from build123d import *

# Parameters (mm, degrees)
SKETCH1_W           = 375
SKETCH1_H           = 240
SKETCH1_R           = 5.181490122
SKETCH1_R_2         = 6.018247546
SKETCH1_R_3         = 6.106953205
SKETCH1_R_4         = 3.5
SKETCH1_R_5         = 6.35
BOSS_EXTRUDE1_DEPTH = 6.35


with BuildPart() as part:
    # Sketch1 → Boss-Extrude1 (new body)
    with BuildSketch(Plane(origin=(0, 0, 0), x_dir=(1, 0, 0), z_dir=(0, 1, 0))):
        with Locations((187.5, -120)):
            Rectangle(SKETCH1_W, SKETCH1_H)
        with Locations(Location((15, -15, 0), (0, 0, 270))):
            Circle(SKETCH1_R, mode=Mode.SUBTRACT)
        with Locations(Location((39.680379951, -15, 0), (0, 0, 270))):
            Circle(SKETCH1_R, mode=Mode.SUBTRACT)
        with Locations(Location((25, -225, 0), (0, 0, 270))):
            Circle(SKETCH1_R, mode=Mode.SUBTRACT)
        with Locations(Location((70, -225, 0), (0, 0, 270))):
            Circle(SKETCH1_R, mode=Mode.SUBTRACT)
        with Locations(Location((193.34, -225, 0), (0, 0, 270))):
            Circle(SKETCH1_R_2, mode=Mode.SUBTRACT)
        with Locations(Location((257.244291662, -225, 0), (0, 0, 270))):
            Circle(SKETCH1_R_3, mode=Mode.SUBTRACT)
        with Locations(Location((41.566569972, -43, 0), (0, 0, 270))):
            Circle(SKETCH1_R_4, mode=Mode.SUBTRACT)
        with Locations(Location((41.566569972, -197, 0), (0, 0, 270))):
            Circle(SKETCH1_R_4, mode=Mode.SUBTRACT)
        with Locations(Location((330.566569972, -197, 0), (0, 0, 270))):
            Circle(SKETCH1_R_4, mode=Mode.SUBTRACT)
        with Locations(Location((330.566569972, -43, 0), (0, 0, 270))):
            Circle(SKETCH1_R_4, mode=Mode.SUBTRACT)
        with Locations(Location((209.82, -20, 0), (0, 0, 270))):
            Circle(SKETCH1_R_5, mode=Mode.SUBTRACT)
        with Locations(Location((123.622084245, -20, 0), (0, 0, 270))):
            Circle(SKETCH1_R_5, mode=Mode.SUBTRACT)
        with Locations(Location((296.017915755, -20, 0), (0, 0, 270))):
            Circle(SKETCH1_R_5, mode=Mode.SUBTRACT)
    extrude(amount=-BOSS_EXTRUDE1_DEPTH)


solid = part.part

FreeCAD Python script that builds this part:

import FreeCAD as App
import Part
import Sketcher

V = App.Vector


def add_polygon(sketch, points):
    """Adds a closed chain of lines whose ends are joined by coincident constraints."""
    first, n = sketch.GeometryCount, len(points)
    for a, b in zip(points, points[1:] + points[:1]):
        sketch.addGeometry(Part.LineSegment(App.Vector(*a, 0), App.Vector(*b, 0)), False)
    for i in range(n):
        sketch.addConstraint(Sketcher.Constraint("Coincident", first + i, 2, first + (i + 1) % n, 1))

doc = App.newDocument("Part")
body = doc.addObject("PartDesign::Body", "Body")

# Sketch on XZ plane
sketch1 = doc.addObject("Sketcher::SketchObject", "Sketch")
body.addObject(sketch1)
sketch1.AttachmentSupport = (doc.XZ_Plane, [""])
sketch1.MapMode = "FlatFace"
add_polygon(sketch1, [(0, 0), (0, 240), (375, 240), (375, 0)])  # lines 0-3
sketch1.addGeometry(Part.Circle(V(25, 225, 0), V(0, 0, 1), 5.18149), False)  # 4
sketch1.addGeometry(Part.Circle(V(70, 225, 0), V(0, 0, 1), 5.18149), False)  # 5
sketch1.addGeometry(Part.Circle(V(41.56657, 197, 0), V(0, 0, 1), 3.5), False)  # 6
sketch1.addGeometry(Part.Circle(V(193.34, 225, 0), V(0, 0, 1), 6.018248), False)  # 7
sketch1.addGeometry(Part.Circle(V(257.244292, 225, 0), V(0, 0, 1), 6.106953), False)  # 8
sketch1.addGeometry(Part.Circle(V(330.56657, 197, 0), V(0, 0, 1), 3.5), False)  # 9
sketch1.addGeometry(Part.Circle(V(41.56657, 43, 0), V(0, 0, 1), 3.5), False)  # 10
sketch1.addGeometry(Part.Circle(V(15, 15, 0), V(0, 0, 1), 5.18149), False)  # 11
sketch1.addGeometry(Part.Circle(V(39.68038, 15, 0), V(0, 0, 1), 5.18149), False)  # 12
sketch1.addGeometry(Part.Circle(V(123.622084, 20, 0), V(0, 0, 1), 6.35), False)  # 13
sketch1.addGeometry(Part.Circle(V(209.82, 20, 0), V(0, 0, 1), 6.35), False)  # 14
sketch1.addGeometry(Part.Circle(V(330.56657, 43, 0), V(0, 0, 1), 3.5), False)  # 15
sketch1.addGeometry(Part.Circle(V(296.017916, 20, 0), V(0, 0, 1), 6.35), False)  # 16
sketch1.addConstraint([
    Sketcher.Constraint("Vertical", 0),
    Sketcher.Constraint("Horizontal", 1),
    Sketcher.Constraint("Vertical", 2),
    Sketcher.Constraint("Horizontal", 3),
    Sketcher.Constraint("Coincident", 3, 2, -1, 1),
    Sketcher.Constraint("Equal", 4, 5),
    Sketcher.Constraint("Equal", 6, 9),
    Sketcher.Constraint("Equal", 9, 10),
    Sketcher.Constraint("Equal", 5, 11),
    Sketcher.Constraint("Equal", 11, 12),
    Sketcher.Constraint("Equal", 13, 14),
    Sketcher.Constraint("Equal", 10, 15),
    Sketcher.Constraint("Equal", 14, 16),
    Sketcher.Constraint("Horizontal", 4, 3, 5, 3),
    Sketcher.Constraint("Horizontal", 5, 3, 7, 3),
    Sketcher.Constraint("Horizontal", 7, 3, 8, 3),
    Sketcher.Constraint("Horizontal", 6, 3, 9, 3),
    Sketcher.Constraint("Horizontal", 11, 3, 12, 3),
    Sketcher.Constraint("Horizontal", 13, 3, 14, 3),
    Sketcher.Constraint("Horizontal", 10, 3, 15, 3),
    Sketcher.Constraint("Horizontal", 14, 3, 16, 3),
    Sketcher.Constraint("Vertical", 6, 3, 10, 3),
    Sketcher.Constraint("Vertical", 9, 3, 15, 3),
    Sketcher.Constraint("Diameter", 6, 7.0),
    Sketcher.Constraint("Diameter", 13, 12.7),
    Sketcher.Constraint("DistanceX", 1, 1, 1, 2, 375.0),
    Sketcher.Constraint("DistanceY", 0, 1, 0, 2, 240.0),
    Sketcher.Constraint("DistanceX", -1, 1, 4, 3, 25.0),
    Sketcher.Constraint("DistanceY", -1, 1, 4, 3, 225.0),
    Sketcher.Constraint("DistanceX", -1, 1, 5, 3, 70.0),
    Sketcher.Constraint("DistanceY", -1, 1, 6, 3, 197.0),
    Sketcher.Constraint("DistanceY", -1, 1, 10, 3, 43.0),
    Sketcher.Constraint("DistanceX", -1, 1, 11, 3, 15.0),
    Sketcher.Constraint("DistanceY", -1, 1, 11, 3, 15.0),
    Sketcher.Constraint("DistanceY", -1, 1, 13, 3, 20.0),
    Sketcher.Constraint("DistanceX", 6, 3, 9, 3, 289.0),
    Sketcher.Constraint("Diameter", 4, 10.36298),
    Sketcher.Constraint("DistanceX", -1, 1, 7, 3, 193.34),
    Sketcher.Constraint("DistanceX", -1, 1, 14, 3, 209.82),
    Sketcher.Constraint("Diameter", 7, 12.036495),
    Sketcher.Constraint("Diameter", 8, 12.213906),
    Sketcher.Constraint("DistanceX", -1, 1, 6, 3, 41.56657),
    Sketcher.Constraint("DistanceX", -1, 1, 8, 3, 257.244292),
    Sketcher.Constraint("DistanceX", -1, 1, 12, 3, 39.68038),
    Sketcher.Constraint("DistanceX", 13, 3, 16, 3, 172.395832),
    Sketcher.Constraint("DistanceX", -1, 1, 13, 3, 123.622084),
])
pad1 = doc.addObject("PartDesign::Pad", "Pad")
body.addObject(pad1)
pad1.Profile = sketch1
pad1.Length = 6.35

doc.recompute()
